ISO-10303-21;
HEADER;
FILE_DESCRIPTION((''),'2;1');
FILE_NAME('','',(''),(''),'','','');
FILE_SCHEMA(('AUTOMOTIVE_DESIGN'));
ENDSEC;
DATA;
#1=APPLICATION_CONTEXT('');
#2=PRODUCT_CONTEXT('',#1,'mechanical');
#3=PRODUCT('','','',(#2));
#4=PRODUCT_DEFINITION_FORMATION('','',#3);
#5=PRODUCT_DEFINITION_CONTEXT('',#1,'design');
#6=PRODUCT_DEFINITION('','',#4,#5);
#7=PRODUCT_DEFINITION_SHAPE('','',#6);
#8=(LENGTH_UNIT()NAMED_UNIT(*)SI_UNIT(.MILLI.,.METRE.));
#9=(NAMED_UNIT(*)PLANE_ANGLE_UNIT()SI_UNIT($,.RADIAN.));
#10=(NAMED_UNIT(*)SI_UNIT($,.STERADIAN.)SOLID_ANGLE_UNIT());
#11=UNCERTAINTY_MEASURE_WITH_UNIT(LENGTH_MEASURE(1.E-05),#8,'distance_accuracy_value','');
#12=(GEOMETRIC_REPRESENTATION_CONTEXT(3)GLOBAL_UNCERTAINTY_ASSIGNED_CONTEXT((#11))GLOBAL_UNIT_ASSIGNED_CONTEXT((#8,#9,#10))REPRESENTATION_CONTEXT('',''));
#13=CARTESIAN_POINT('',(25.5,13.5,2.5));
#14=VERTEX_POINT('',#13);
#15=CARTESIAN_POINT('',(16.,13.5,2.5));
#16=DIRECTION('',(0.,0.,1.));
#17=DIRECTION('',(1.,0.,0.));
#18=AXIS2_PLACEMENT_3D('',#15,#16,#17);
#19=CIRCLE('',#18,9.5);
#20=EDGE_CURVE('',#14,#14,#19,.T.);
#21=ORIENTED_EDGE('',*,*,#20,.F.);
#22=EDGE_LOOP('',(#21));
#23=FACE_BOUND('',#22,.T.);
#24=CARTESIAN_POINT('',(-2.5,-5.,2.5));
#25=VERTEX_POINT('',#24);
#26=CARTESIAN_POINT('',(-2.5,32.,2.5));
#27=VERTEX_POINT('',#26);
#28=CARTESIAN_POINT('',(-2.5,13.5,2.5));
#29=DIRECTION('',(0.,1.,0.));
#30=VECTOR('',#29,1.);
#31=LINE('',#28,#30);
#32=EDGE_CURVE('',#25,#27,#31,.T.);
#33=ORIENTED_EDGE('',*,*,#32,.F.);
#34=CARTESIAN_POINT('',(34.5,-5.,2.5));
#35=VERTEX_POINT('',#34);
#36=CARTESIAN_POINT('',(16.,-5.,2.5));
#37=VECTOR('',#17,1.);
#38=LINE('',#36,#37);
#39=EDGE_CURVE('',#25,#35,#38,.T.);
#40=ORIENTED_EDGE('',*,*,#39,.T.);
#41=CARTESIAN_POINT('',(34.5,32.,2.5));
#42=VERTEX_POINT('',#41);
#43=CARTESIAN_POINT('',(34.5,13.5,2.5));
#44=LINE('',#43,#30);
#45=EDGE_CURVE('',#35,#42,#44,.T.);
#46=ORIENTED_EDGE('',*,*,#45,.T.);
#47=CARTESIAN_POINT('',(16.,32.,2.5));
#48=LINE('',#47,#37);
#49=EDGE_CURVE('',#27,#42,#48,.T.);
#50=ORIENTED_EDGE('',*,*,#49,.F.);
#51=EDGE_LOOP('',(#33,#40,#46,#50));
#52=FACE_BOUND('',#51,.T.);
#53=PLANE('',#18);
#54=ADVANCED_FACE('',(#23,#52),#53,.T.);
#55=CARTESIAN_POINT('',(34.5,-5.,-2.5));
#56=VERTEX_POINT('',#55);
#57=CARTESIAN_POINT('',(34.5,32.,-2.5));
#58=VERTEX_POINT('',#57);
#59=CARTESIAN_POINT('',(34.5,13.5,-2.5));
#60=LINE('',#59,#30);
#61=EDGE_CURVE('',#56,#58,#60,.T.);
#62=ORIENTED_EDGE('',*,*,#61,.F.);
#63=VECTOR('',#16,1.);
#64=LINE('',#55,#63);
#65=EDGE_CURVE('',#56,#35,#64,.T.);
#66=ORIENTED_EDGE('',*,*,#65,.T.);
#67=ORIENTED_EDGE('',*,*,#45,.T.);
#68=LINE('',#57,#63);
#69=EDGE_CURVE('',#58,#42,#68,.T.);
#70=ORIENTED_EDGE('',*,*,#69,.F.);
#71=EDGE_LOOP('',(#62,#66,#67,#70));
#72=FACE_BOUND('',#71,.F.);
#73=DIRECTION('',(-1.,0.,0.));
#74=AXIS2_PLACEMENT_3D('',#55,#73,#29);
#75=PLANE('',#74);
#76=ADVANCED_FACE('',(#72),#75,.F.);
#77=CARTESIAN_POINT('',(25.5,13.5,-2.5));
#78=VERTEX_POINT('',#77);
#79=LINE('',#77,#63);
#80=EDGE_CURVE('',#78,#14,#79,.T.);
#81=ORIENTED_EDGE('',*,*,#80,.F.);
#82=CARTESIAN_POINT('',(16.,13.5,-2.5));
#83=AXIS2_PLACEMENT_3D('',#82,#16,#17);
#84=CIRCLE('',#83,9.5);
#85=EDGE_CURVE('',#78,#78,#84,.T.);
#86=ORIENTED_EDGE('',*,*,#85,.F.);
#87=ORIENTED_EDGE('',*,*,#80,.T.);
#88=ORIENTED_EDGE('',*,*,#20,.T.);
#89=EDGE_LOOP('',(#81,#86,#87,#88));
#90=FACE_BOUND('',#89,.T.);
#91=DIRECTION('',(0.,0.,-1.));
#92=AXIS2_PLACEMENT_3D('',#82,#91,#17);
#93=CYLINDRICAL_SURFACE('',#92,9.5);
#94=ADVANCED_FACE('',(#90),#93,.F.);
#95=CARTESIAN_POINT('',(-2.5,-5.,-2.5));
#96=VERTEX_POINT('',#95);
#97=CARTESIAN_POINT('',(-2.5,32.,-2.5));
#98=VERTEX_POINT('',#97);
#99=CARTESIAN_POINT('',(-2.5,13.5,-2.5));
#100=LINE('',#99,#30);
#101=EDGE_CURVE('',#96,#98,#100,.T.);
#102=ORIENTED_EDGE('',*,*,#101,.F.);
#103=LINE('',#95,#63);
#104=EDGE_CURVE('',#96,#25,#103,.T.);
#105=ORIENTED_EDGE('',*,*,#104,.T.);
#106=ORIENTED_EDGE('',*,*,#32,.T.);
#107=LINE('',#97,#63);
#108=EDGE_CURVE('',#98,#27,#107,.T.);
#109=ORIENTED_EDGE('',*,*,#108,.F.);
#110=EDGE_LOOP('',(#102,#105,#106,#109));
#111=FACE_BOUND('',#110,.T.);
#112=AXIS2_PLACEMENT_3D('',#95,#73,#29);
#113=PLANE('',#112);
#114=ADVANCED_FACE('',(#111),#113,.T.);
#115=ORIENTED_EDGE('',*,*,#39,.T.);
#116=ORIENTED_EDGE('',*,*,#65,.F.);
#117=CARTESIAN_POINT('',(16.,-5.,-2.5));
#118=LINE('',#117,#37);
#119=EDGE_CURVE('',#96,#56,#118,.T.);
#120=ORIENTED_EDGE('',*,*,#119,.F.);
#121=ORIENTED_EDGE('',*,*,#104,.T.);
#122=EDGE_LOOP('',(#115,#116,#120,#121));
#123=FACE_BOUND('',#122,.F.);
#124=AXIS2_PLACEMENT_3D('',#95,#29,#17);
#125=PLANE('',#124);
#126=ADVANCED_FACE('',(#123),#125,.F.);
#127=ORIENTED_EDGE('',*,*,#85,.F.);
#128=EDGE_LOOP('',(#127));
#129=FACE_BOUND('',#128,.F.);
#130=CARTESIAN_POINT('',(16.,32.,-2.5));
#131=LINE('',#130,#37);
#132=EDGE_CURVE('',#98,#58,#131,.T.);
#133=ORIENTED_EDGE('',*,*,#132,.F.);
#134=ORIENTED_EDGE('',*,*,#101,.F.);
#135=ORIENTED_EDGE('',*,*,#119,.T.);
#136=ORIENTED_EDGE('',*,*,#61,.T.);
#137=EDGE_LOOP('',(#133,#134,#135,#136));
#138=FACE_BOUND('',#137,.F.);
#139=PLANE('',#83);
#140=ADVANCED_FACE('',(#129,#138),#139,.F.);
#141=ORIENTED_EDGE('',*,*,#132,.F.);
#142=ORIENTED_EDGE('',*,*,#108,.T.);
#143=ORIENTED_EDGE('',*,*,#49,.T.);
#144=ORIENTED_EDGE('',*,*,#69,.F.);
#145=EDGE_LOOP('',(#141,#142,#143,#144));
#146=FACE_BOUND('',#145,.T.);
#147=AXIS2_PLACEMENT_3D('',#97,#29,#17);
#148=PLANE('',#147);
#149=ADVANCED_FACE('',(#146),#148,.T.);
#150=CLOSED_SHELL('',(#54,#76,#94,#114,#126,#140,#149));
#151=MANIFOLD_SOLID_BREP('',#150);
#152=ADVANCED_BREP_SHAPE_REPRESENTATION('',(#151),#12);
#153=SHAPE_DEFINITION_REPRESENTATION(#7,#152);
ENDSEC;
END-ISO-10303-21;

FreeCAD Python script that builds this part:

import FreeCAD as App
import Part
import Sketcher
from FreeCAD import Vector

doc = App.newDocument("Part")
body = doc.addObject("PartDesign::Body", "Body")

# Sketch on XZ plane
sketch1 = body.newObject("Sketcher::SketchObject", "Sketch")
sketch1.AttachmentSupport = (doc.getObject("XZ_Plane"), [""])
sketch1.MapMode = "FlatFace"
sketch1.addGeometry([
    Part.LineSegment(Vector(-18, 18, 0), Vector(-18, -18, 0)),  # 0
    Part.LineSegment(Vector(-18, -18, 0), Vector(18, -18, 0)),  # 1
    Part.LineSegment(Vector(18, -18, 0), Vector(18, 18, 0)),  # 2
    Part.LineSegment(Vector(18, 18, 0), Vector(-18, 18, 0)),  # 3
    Part.Circle(Vector(0, 0, 0), Vector(0, 0, 1), 10),  # 4
], False)
sketch1.addConstraint([
    Sketcher.Constraint("Coincident", 0, 2, 1, 1),
    Sketcher.Constraint("Coincident", 1, 2, 2, 1),
    Sketcher.Constraint("Coincident", 2, 2, 3, 1),
    Sketcher.Constraint("Coincident", 3, 2, 0, 1),
    Sketcher.Constraint("Vertical", 0),
    Sketcher.Constraint("Horizontal", 1),
    Sketcher.Constraint("Vertical", 2),
    Sketcher.Constraint("Horizontal", 3),
    Sketcher.Constraint("Coincident", 4, 3, -1, 1),
    Sketcher.Constraint("Symmetric", 0, 2, 2, 2, -1, 1),
    Sketcher.Constraint("Equal", 3, 0),
    Sketcher.Constraint("Diameter", 4, 19.0),
    Sketcher.Constraint("DistanceX", 1, 1, 1, 2, 37.0),
])
pad1 = body.newObject("PartDesign::Pad", "Pad")
pad1.Profile = sketch1
pad1.Length = 5
body2 = doc.addObject("PartDesign::Body", "Body001")
doc.recompute()

body.Placement = App.Placement(Vector(0, -18.5, 18.5), App.Rotation(Vector(-1, 0, 0), 90))
boolean = body2.newObject("PartDesign::Boolean", "Boolean")
boolean.Type = "Fuse"
boolean.addObjects([body])
body3 = doc.addObject("PartDesign::Body", "Body002")
doc.recompute()

body2.Placement = App.Placement(Vector(16, 32, -21), App.Rotation(Vector(0, 0, 1), 0))
boolean2 = body3.newObject("PartDesign::Boolean", "Boolean001")
boolean2.Type = "Fuse"
boolean2.addObjects([body2])

doc.recompute()
